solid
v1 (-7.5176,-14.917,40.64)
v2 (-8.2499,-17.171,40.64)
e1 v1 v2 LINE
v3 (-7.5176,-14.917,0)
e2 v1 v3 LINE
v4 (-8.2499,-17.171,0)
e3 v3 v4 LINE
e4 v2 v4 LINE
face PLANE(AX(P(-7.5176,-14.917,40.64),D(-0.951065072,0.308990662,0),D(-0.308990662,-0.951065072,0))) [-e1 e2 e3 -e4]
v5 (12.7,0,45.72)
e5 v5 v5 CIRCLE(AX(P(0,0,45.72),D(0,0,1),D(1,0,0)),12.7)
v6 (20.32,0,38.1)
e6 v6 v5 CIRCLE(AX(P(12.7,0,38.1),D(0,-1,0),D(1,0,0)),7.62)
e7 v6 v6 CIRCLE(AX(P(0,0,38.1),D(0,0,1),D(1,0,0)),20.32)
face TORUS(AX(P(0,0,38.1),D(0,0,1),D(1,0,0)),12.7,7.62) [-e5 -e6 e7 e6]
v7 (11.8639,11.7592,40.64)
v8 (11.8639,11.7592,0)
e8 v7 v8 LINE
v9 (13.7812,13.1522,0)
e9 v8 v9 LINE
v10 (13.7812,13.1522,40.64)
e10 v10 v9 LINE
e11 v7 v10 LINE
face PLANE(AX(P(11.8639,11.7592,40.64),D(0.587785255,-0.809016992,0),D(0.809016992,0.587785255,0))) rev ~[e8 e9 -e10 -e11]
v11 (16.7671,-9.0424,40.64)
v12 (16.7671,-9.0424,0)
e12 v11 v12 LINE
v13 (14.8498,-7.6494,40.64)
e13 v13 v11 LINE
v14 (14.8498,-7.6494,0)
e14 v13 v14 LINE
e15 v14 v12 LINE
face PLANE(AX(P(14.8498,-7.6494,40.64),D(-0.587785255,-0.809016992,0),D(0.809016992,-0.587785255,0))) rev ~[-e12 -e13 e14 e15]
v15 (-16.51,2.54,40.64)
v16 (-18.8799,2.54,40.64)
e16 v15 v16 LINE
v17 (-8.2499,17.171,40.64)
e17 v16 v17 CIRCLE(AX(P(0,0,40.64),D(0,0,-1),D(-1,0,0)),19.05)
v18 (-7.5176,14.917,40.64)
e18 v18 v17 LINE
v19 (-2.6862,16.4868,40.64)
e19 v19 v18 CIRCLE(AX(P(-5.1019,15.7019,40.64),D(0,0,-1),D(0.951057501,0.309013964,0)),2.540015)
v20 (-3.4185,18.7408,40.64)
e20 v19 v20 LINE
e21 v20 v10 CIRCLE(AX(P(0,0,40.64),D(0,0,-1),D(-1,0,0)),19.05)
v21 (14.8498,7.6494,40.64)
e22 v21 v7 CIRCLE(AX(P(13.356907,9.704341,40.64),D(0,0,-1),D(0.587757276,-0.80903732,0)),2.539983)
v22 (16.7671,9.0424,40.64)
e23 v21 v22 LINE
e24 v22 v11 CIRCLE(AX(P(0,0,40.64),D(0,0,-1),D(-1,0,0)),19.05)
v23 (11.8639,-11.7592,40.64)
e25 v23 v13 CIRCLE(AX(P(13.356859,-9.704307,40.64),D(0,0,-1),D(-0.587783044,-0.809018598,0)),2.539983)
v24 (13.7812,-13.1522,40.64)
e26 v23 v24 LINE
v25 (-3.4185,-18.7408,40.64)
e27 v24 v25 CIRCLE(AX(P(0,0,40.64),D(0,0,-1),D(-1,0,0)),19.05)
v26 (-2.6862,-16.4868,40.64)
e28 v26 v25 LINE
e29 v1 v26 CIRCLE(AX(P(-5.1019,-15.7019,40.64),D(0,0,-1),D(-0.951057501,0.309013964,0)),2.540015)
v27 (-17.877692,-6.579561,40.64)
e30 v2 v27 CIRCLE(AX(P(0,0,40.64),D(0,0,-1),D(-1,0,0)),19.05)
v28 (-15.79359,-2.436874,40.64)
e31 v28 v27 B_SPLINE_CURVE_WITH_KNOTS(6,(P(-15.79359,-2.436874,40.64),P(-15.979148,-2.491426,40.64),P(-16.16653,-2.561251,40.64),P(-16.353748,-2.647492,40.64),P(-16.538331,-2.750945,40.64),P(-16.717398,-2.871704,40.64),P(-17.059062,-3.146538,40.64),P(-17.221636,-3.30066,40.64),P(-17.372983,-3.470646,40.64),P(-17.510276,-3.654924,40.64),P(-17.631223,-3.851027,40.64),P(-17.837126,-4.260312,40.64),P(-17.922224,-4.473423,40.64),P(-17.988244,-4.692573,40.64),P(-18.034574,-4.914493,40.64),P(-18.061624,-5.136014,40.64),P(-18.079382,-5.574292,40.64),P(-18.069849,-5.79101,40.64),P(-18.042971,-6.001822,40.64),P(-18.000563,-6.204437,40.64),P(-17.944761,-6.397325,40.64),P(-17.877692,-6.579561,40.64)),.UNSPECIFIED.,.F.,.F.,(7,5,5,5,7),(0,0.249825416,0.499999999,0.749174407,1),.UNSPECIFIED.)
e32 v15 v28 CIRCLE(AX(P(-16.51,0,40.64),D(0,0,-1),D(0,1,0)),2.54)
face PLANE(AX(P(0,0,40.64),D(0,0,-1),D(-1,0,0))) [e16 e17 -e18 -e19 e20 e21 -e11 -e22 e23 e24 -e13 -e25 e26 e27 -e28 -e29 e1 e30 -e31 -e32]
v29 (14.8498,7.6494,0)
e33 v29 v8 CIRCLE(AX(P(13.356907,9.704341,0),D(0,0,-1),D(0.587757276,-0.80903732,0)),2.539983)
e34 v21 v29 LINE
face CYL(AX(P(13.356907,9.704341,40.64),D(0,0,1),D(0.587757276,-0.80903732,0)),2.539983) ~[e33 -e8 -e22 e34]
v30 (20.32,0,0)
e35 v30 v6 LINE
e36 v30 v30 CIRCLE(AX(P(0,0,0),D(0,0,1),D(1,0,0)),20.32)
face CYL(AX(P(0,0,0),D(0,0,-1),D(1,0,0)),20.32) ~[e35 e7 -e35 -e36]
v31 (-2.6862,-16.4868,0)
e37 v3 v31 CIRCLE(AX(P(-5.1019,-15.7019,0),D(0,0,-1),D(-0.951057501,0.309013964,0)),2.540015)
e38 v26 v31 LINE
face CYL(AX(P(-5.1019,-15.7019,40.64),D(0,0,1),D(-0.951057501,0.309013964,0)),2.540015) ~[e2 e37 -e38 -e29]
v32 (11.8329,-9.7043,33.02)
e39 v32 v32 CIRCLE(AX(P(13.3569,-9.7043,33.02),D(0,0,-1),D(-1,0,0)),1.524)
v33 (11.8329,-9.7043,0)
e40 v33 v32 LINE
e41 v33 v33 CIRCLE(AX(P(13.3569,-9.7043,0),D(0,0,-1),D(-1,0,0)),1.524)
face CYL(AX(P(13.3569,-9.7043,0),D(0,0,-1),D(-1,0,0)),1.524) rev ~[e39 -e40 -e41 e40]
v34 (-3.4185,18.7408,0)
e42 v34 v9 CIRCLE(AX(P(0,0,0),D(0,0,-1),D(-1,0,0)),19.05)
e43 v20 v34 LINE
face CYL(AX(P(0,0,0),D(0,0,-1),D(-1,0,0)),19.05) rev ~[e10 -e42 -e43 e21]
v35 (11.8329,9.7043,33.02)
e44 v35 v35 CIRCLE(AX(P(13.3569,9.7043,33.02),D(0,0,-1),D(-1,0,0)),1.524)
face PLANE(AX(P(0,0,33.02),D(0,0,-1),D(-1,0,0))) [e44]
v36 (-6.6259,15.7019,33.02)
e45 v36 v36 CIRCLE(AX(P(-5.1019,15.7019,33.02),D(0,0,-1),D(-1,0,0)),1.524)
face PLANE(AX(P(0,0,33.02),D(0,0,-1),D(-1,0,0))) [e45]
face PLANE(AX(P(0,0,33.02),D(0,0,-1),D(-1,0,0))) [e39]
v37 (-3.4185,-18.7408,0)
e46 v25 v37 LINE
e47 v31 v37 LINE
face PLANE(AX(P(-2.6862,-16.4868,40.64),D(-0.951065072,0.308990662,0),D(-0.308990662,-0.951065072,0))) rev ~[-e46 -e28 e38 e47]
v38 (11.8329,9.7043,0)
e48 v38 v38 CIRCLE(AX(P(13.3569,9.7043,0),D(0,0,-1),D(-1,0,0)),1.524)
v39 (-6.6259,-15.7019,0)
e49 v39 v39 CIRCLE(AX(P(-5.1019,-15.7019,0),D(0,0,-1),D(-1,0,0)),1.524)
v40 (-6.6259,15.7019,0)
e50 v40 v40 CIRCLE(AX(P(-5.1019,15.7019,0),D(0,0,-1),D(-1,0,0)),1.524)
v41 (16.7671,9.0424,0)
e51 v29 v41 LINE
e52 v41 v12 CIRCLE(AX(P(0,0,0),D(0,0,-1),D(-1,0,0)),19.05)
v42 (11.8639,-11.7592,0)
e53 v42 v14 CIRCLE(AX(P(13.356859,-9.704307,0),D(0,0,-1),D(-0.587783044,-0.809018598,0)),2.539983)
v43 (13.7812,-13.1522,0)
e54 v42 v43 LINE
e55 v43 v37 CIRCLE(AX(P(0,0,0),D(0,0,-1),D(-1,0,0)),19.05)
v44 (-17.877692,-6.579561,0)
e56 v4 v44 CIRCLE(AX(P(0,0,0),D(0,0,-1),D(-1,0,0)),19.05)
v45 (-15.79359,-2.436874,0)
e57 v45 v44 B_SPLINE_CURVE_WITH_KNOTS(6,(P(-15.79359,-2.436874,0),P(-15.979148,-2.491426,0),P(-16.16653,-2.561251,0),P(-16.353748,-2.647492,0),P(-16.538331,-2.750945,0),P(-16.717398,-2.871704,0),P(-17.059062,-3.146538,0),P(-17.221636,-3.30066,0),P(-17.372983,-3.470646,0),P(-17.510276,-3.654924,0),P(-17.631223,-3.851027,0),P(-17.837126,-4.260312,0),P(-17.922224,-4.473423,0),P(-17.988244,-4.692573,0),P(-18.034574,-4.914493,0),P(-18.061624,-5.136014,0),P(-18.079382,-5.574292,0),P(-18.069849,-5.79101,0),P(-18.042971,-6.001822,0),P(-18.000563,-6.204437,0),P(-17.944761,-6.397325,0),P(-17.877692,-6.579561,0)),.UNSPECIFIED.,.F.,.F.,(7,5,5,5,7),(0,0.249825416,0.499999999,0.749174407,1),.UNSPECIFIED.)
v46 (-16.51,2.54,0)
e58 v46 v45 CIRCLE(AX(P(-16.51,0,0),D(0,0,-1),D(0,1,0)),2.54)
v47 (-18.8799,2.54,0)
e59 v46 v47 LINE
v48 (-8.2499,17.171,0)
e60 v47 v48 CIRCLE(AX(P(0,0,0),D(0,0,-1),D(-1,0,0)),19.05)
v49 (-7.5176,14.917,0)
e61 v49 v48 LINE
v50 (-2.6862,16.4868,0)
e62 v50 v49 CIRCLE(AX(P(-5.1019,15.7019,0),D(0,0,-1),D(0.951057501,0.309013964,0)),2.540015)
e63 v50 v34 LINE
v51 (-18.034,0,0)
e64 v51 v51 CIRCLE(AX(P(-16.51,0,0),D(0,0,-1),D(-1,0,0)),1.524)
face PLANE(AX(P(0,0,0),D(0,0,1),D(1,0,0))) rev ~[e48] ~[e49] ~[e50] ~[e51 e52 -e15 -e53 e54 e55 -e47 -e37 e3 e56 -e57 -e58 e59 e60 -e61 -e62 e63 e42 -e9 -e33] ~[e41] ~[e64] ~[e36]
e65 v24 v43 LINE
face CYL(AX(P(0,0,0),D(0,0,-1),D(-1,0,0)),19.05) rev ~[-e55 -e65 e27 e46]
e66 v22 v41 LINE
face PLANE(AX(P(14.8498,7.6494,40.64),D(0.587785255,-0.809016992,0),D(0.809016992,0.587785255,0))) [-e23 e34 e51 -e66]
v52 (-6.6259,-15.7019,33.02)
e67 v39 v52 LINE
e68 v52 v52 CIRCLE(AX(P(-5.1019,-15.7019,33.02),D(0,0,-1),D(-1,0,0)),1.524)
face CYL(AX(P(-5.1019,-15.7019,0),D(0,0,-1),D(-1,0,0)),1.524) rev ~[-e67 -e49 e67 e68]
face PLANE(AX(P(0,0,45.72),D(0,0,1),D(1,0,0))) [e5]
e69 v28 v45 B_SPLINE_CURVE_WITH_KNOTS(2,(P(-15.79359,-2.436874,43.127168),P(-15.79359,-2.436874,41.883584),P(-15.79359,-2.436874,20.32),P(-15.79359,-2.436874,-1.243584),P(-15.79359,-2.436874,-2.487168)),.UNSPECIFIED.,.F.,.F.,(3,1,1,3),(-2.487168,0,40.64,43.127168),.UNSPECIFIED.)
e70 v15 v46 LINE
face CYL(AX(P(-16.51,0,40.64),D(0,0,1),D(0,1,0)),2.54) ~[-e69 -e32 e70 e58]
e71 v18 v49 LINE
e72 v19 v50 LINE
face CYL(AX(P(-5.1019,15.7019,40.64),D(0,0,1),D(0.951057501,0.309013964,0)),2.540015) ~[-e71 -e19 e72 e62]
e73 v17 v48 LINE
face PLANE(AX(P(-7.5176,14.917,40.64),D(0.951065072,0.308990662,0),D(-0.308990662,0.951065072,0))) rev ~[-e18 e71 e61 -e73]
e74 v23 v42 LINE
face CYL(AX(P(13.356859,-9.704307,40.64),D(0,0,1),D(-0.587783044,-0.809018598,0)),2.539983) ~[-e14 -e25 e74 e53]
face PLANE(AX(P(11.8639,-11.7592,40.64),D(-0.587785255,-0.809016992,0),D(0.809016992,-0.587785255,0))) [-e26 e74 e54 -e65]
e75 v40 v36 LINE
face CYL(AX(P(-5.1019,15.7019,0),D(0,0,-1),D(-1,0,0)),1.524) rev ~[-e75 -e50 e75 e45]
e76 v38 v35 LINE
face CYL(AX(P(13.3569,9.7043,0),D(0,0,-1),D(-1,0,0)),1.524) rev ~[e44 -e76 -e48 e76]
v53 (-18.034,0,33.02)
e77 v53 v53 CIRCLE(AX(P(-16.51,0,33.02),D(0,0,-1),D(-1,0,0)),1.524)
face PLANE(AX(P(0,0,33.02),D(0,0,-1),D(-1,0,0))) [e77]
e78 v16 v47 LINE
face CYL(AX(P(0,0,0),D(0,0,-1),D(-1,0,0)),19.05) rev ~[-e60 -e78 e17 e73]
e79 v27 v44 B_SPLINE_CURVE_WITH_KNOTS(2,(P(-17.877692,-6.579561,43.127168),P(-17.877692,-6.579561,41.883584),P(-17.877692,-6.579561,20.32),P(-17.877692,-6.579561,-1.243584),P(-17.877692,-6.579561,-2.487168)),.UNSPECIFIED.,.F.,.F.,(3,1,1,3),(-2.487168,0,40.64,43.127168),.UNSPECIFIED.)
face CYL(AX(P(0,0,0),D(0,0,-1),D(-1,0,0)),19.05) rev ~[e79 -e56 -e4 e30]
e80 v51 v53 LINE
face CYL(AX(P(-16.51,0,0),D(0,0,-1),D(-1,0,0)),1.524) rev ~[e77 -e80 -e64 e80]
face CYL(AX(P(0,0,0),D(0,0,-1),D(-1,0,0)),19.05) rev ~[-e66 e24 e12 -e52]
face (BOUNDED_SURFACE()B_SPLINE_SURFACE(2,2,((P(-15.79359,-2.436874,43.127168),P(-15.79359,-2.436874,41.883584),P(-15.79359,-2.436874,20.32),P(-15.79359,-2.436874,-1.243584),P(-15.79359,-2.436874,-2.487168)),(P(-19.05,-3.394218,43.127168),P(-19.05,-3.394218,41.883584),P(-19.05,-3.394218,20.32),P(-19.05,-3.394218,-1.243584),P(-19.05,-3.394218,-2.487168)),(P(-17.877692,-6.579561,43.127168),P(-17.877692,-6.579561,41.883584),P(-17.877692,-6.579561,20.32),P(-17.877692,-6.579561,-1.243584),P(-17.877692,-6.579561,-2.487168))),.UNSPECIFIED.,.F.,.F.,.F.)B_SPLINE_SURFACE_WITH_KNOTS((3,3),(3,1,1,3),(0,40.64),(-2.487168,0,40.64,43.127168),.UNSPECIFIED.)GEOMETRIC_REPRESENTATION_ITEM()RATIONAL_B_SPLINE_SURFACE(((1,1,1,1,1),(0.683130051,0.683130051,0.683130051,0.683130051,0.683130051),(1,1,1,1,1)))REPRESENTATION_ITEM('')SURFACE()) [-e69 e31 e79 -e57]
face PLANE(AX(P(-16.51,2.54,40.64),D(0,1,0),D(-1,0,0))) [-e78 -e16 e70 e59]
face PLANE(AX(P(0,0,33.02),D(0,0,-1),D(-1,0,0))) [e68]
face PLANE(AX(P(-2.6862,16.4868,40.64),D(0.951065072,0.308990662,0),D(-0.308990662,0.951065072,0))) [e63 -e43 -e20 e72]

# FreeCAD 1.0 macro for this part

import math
import FreeCAD as App
import Part
import Sketcher

V = App.Vector
Q = App.Units.Quantity


def edges_at(feature, points):
    """Names of the edges that pass closest to the given points."""
    edges = feature.Shape.Edges
    near = lambda p: min(range(len(edges)), key=lambda i: edges[i].distToShape(Part.Vertex(*p))[0])
    return sorted({f"Edge{near(p) + 1}" for p in points})

doc = App.newDocument("Part")
body = doc.addObject("PartDesign::Body", "Body")

# Sketch on XY plane
sketch1 = body.newObject("Sketcher::SketchObject", "Sketch")
sketch1.AttachmentSupport = (doc.getObject("XY_Plane"), [""])
sketch1.MapMode = "FlatFace"
sketch1.addGeometry(Part.Circle(V(0, 0, 0), V(0, 0, 1), 20), False)
sketch1.addConstraint(Sketcher.Constraint("Coincident", 0, 3, -1, 1))
sketch1.addConstraint(Sketcher.Constraint("Diameter", 0, Q("1.6 in")))
pad1 = body.newObject("PartDesign::Pad", "Pad")
pad1.Profile = sketch1
pad1.Length = Q("1.8 in")

# Sketch on XY plane
sketch2 = body.newObject("Sketcher::SketchObject", "Sketch001")
sketch2.AttachmentSupport = (doc.getObject("XY_Plane"), [""])
sketch2.MapMode = "FlatFace"
sketch2.addGeometry(Part.Circle(V(0, 0, 0), V(0, 0, 1), 19), False)
sketch2.addConstraint(Sketcher.Constraint("Coincident", 0, 3, -1, 1))
sketch2.addConstraint(Sketcher.Constraint("Diameter", 0, Q("1.5 in")))
pocket1 = body.newObject("PartDesign::Pocket", "Pocket")
pocket1.Profile = sketch2
pocket1.Length = Q("1.6 in")
pocket1.Reversed = True

# Sketch on XY plane
sketch3 = body.newObject("Sketcher::SketchObject", "Sketch002")
sketch3.AttachmentSupport = (doc.getObject("XY_Plane"), [""])
sketch3.MapMode = "FlatFace"
sketch3.AttachmentOffset = App.Placement(V(0, 0, 1.6 * 25.4), App.Rotation())
sketch3.addGeometry(Part.LineSegment(V(-18.9, 2.5, 0), V(-16.5, 2.5, 0)), False)
sketch3.addGeometry(Part.ArcOfCircle(Part.Circle(V(-16.5, 0, 0), V(0, 0, 1), 2.5), math.radians(-90), math.radians(90)), False)
sketch3.addGeometry(Part.LineSegment(V(-16.5, -2.5, 0), V(-18.9, -2.5, 0)), False)
sketch3.addGeometry(Part.ArcOfCircle(Part.Circle(V(0, 0, 0), V(0, 0, 1), 19.1), math.radians(172.34), math.radians(187.66)), False)
sketch3.addGeometry(Part.LineSegment(V(-7.5, 14.9, 0), V(-8.2, 17.2, 0)), False)
sketch3.addGeometry(Part.ArcOfCircle(Part.Circle(V(0, 0, 0), V(0, 0, 1), 19.1), math.radians(100.34), math.radians(115.66)), False)
sketch3.addGeometry(Part.LineSegment(V(-3.4, 18.7, 0), V(-2.7, 16.5, 0)), False)
sketch3.addGeometry(Part.ArcOfCircle(Part.Circle(V(-5.1, 15.7, 0), V(0, 0, 1), 2.5), math.radians(-162), math.radians(18)), False)
sketch3.addGeometry(Part.ArcOfCircle(Part.Circle(V(0, 0, 0), V(0, 0, 1), 19.1), math.radians(-115.66), math.radians(-100.34)), False)
sketch3.addGeometry(Part.LineSegment(V(-8.2, -17.2, 0), V(-7.5, -14.9, 0)), False)
sketch3.addGeometry(Part.ArcOfCircle(Part.Circle(V(-5.1, -15.7, 0), V(0, 0, 1), 2.5), math.radians(-18), math.radians(162)), False)
sketch3.addGeometry(Part.LineSegment(V(-2.7, -16.5, 0), V(-3.4, -18.7, 0)), False)
sketch3.addGeometry(Part.LineSegment(V(11.9, 11.8, 0), V(13.8, 13.2, 0)), False)
sketch3.addGeometry(Part.ArcOfCircle(Part.Circle(V(0, 0, 0), V(0, 0, 1), 19.1), math.radians(28.34), math.radians(43.66)), False)
sketch3.addGeometry(Part.LineSegment(V(16.8, 9, 0), V(14.8, 7.6, 0)), False)
sketch3.addGeometry(Part.ArcOfCircle(Part.Circle(V(13.4, 9.7, 0), V(0, 0, 1), 2.5), math.radians(126), math.radians(306)), False)
sketch3.addGeometry(Part.ArcOfCircle(Part.Circle(V(0, 0, 0), V(0, 0, 1), 19.1), math.radians(-43.66), math.radians(-28.34)), False)
sketch3.addGeometry(Part.LineSegment(V(13.8, -13.2, 0), V(11.9, -11.8, 0)), False)
sketch3.addGeometry(Part.ArcOfCircle(Part.Circle(V(13.4, -9.7, 0), V(0, 0, 1), 2.5), math.radians(54), math.radians(234)), False)
sketch3.addGeometry(Part.LineSegment(V(14.8, -7.6, 0), V(16.8, -9, 0)), False)
sketch3.addConstraint(Sketcher.Constraint("Tangent", 0, 2, 1, 2))
sketch3.addConstraint(Sketcher.Constraint("Tangent", 1, 1, 2, 1))
sketch3.addConstraint(Sketcher.Constraint("Coincident", 2, 2, 3, 2))
sketch3.addConstraint(Sketcher.Constraint("Coincident", 3, 1, 0, 1))
sketch3.addConstraint(Sketcher.Constraint("Coincident", 4, 2, 5, 2))
sketch3.addConstraint(Sketcher.Constraint("Coincident", 5, 1, 6, 1))
sketch3.addConstraint(Sketcher.Constraint("Tangent", 6, 2, 7, 2))
sketch3.addConstraint(Sketcher.Constraint("Tangent", 7, 1, 4, 1))
sketch3.addConstraint(Sketcher.Constraint("Coincident", 8, 1, 9, 1))
sketch3.addConstraint(Sketcher.Constraint("Tangent", 9, 2, 10, 2))
sketch3.addConstraint(Sketcher.Constraint("Tangent", 10, 1, 11, 1))
sketch3.addConstraint(Sketcher.Constraint("Coincident", 11, 2, 8, 2))
sketch3.addConstraint(Sketcher.Constraint("Coincident", 12, 2, 13, 2))
sketch3.addConstraint(Sketcher.Constraint("Coincident", 13, 1, 14, 1))
sketch3.addConstraint(Sketcher.Constraint("Tangent", 14, 2, 15, 2))
sketch3.addConstraint(Sketcher.Constraint("Tangent", 15, 1, 12, 1))
sketch3.addConstraint(Sketcher.Constraint("Coincident", 16, 1, 17, 1))
sketch3.addConstraint(Sketcher.Constraint("Tangent", 17, 2, 18, 2))
sketch3.addConstraint(Sketcher.Constraint("Tangent", 18, 1, 19, 1))
sketch3.addConstraint(Sketcher.Constraint("Coincident", 19, 2, 16, 2))
sketch3.addConstraint(Sketcher.Constraint("Horizontal", 0))
sketch3.addConstraint(Sketcher.Constraint("Horizontal", 2))
sketch3.addConstraint(Sketcher.Constraint("Coincident", 3, 3, -1, 1))
sketch3.addConstraint(Sketcher.Constraint("Coincident", 5, 3, -1, 1))
sketch3.addConstraint(Sketcher.Constraint("Coincident", 8, 3, -1, 1))
sketch3.addConstraint(Sketcher.Constraint("Coincident", 13, 3, -1, 1))
sketch3.addConstraint(Sketcher.Constraint("Coincident", 16, 3, -1, 1))
sketch3.addConstraint(Sketcher.Constraint("Equal", 3, 5))
sketch3.addConstraint(Sketcher.Constraint("Equal", 1, 7))
sketch3.addConstraint(Sketcher.Constraint("Equal", 5, 8))
sketch3.addConstraint(Sketcher.Constraint("Equal", 7, 10))
sketch3.addConstraint(Sketcher.Constraint("Equal", 8, 13))
sketch3.addConstraint(Sketcher.Constraint("Equal", 10, 15))
sketch3.addConstraint(Sketcher.Constraint("Equal", 13, 16))
sketch3.addConstraint(Sketcher.Constraint("Equal", 15, 18))
sketch3.addConstraint(Sketcher.Constraint("Symmetric", 7, 3, 10, 3, -1))
sketch3.addConstraint(Sketcher.Constraint("Symmetric", 15, 3, 18, 3, -1))
sketch3.addConstraint(Sketcher.Constraint("PointOnObject", 1, 3, -1))
sketch3.addConstraint(Sketcher.Constraint("Parallel", 4, 6))
sketch3.addConstraint(Sketcher.Constraint("Parallel", 9, 11))
sketch3.addConstraint(Sketcher.Constraint("Parallel", 12, 14))
sketch3.addConstraint(Sketcher.Constraint("Parallel", 17, 19))
sketch3.addConstraint(Sketcher.Constraint("Vertical", 4, 2, 8, 1))
sketch3.addConstraint(Sketcher.Constraint("Vertical", 12, 2, 16, 1))
sketch3.addConstraint(Sketcher.Constraint("Equal", 4, 6))
sketch3.addConstraint(Sketcher.Constraint("Equal", 11, 12))
sketch3.addConstraint(Sketcher.Constraint("Equal", 12, 14))
sketch3.addConstraint(Sketcher.Constraint("Radius", 1, Q("0.1 in")))
sketch3.addConstraint(Sketcher.Constraint("Radius", 3, Q("0.75 in")))
sketch3.addConstraint(Sketcher.Constraint("Angle", 12, Q("36 deg")))
sketch3.addConstraint(Sketcher.Constraint("DistanceX", 1, 3, -1, 1, Q("0.65 in")))
sketch3.addConstraint(Sketcher.Constraint("Distance", 4, Q("0.0933 in")))
sketch3.addConstraint(Sketcher.Constraint("DistanceX", 4, 2, -1, 1, Q("0.3248 in")))
pad2 = body.newObject("PartDesign::Pad", "Pad001")
pad2.Profile = sketch3
pad2.Length = Q("1.6 in")
pad2.Reversed = True

# Sketch on XY plane
sketch4 = body.newObject("Sketcher::SketchObject", "Sketch003")
sketch4.AttachmentSupport = (doc.getObject("XY_Plane"), [""])
sketch4.MapMode = "FlatFace"
sketch4.addGeometry(Part.Circle(V(-16.5, 0, 0), V(0, 0, 1), 1.5), False)
sketch4.addGeometry(Part.Circle(V(-5.1, 15.7, 0), V(0, 0, 1), 1.5), False)
sketch4.addGeometry(Part.Circle(V(13.4, 9.7, 0), V(0, 0, 1), 1.5), False)
sketch4.addGeometry(Part.Circle(V(13.4, -9.7, 0), V(0, 0, 1), 1.5), False)
sketch4.addGeometry(Part.Circle(V(-5.1, -15.7, 0), V(0, 0, 1), 1.5), False)
sketch4.addConstraint(Sketcher.Constraint("Equal", 0, 1))
sketch4.addConstraint(Sketcher.Constraint("Equal", 1, 2))
sketch4.addConstraint(Sketcher.Constraint("Equal", 2, 3))
sketch4.addConstraint(Sketcher.Constraint("Equal", 3, 4))
sketch4.addConstraint(Sketcher.Constraint("Symmetric", 2, 3, 3, 3, -1))
sketch4.addConstraint(Sketcher.Constraint("Symmetric", 1, 3, 4, 3, -1))
sketch4.addConstraint(Sketcher.Constraint("PointOnObject", 0, 3, -1))
sketch4.addConstraint(Sketcher.Constraint("Diameter", 0, Q("0.12 in")))
sketch4.addConstraint(Sketcher.Constraint("DistanceX", 0, 3, -1, 1, Q("0.65 in")))
sketch4.addConstraint(Sketcher.Constraint("DistanceX", 1, 3, -1, 1, 5.102))
sketch4.addConstraint(Sketcher.Constraint("DistanceY", -1, 1, 1, 3, Q("0.618189 in")))
sketch4.addConstraint(Sketcher.Constraint("DistanceX", -1, 1, 2, 3, 13.357))
sketch4.addConstraint(Sketcher.Constraint("DistanceY", -1, 1, 2, 3, 9.7043))
pocket2 = body.newObject("PartDesign::Pocket", "Pocket001")
pocket2.Profile = sketch4
pocket2.Length = Q("1.3 in")
pocket2.Reversed = True
doc.recompute()

fillet = body.newObject("PartDesign::Fillet", "Fillet")
fillet.Base = (pocket2, edges_at(pocket2, [(-20.32, 0, 45.72)]))
fillet.Radius = Q("0.3 in")
doc.recompute()

fillet2 = body.newObject("PartDesign::Fillet", "Fillet001")
fillet2.Base = (fillet, edges_at(fillet, [(-18.88, -2.54, 20.32)]))
fillet2.Radius = Q("0.125 in")

doc.recompute()
